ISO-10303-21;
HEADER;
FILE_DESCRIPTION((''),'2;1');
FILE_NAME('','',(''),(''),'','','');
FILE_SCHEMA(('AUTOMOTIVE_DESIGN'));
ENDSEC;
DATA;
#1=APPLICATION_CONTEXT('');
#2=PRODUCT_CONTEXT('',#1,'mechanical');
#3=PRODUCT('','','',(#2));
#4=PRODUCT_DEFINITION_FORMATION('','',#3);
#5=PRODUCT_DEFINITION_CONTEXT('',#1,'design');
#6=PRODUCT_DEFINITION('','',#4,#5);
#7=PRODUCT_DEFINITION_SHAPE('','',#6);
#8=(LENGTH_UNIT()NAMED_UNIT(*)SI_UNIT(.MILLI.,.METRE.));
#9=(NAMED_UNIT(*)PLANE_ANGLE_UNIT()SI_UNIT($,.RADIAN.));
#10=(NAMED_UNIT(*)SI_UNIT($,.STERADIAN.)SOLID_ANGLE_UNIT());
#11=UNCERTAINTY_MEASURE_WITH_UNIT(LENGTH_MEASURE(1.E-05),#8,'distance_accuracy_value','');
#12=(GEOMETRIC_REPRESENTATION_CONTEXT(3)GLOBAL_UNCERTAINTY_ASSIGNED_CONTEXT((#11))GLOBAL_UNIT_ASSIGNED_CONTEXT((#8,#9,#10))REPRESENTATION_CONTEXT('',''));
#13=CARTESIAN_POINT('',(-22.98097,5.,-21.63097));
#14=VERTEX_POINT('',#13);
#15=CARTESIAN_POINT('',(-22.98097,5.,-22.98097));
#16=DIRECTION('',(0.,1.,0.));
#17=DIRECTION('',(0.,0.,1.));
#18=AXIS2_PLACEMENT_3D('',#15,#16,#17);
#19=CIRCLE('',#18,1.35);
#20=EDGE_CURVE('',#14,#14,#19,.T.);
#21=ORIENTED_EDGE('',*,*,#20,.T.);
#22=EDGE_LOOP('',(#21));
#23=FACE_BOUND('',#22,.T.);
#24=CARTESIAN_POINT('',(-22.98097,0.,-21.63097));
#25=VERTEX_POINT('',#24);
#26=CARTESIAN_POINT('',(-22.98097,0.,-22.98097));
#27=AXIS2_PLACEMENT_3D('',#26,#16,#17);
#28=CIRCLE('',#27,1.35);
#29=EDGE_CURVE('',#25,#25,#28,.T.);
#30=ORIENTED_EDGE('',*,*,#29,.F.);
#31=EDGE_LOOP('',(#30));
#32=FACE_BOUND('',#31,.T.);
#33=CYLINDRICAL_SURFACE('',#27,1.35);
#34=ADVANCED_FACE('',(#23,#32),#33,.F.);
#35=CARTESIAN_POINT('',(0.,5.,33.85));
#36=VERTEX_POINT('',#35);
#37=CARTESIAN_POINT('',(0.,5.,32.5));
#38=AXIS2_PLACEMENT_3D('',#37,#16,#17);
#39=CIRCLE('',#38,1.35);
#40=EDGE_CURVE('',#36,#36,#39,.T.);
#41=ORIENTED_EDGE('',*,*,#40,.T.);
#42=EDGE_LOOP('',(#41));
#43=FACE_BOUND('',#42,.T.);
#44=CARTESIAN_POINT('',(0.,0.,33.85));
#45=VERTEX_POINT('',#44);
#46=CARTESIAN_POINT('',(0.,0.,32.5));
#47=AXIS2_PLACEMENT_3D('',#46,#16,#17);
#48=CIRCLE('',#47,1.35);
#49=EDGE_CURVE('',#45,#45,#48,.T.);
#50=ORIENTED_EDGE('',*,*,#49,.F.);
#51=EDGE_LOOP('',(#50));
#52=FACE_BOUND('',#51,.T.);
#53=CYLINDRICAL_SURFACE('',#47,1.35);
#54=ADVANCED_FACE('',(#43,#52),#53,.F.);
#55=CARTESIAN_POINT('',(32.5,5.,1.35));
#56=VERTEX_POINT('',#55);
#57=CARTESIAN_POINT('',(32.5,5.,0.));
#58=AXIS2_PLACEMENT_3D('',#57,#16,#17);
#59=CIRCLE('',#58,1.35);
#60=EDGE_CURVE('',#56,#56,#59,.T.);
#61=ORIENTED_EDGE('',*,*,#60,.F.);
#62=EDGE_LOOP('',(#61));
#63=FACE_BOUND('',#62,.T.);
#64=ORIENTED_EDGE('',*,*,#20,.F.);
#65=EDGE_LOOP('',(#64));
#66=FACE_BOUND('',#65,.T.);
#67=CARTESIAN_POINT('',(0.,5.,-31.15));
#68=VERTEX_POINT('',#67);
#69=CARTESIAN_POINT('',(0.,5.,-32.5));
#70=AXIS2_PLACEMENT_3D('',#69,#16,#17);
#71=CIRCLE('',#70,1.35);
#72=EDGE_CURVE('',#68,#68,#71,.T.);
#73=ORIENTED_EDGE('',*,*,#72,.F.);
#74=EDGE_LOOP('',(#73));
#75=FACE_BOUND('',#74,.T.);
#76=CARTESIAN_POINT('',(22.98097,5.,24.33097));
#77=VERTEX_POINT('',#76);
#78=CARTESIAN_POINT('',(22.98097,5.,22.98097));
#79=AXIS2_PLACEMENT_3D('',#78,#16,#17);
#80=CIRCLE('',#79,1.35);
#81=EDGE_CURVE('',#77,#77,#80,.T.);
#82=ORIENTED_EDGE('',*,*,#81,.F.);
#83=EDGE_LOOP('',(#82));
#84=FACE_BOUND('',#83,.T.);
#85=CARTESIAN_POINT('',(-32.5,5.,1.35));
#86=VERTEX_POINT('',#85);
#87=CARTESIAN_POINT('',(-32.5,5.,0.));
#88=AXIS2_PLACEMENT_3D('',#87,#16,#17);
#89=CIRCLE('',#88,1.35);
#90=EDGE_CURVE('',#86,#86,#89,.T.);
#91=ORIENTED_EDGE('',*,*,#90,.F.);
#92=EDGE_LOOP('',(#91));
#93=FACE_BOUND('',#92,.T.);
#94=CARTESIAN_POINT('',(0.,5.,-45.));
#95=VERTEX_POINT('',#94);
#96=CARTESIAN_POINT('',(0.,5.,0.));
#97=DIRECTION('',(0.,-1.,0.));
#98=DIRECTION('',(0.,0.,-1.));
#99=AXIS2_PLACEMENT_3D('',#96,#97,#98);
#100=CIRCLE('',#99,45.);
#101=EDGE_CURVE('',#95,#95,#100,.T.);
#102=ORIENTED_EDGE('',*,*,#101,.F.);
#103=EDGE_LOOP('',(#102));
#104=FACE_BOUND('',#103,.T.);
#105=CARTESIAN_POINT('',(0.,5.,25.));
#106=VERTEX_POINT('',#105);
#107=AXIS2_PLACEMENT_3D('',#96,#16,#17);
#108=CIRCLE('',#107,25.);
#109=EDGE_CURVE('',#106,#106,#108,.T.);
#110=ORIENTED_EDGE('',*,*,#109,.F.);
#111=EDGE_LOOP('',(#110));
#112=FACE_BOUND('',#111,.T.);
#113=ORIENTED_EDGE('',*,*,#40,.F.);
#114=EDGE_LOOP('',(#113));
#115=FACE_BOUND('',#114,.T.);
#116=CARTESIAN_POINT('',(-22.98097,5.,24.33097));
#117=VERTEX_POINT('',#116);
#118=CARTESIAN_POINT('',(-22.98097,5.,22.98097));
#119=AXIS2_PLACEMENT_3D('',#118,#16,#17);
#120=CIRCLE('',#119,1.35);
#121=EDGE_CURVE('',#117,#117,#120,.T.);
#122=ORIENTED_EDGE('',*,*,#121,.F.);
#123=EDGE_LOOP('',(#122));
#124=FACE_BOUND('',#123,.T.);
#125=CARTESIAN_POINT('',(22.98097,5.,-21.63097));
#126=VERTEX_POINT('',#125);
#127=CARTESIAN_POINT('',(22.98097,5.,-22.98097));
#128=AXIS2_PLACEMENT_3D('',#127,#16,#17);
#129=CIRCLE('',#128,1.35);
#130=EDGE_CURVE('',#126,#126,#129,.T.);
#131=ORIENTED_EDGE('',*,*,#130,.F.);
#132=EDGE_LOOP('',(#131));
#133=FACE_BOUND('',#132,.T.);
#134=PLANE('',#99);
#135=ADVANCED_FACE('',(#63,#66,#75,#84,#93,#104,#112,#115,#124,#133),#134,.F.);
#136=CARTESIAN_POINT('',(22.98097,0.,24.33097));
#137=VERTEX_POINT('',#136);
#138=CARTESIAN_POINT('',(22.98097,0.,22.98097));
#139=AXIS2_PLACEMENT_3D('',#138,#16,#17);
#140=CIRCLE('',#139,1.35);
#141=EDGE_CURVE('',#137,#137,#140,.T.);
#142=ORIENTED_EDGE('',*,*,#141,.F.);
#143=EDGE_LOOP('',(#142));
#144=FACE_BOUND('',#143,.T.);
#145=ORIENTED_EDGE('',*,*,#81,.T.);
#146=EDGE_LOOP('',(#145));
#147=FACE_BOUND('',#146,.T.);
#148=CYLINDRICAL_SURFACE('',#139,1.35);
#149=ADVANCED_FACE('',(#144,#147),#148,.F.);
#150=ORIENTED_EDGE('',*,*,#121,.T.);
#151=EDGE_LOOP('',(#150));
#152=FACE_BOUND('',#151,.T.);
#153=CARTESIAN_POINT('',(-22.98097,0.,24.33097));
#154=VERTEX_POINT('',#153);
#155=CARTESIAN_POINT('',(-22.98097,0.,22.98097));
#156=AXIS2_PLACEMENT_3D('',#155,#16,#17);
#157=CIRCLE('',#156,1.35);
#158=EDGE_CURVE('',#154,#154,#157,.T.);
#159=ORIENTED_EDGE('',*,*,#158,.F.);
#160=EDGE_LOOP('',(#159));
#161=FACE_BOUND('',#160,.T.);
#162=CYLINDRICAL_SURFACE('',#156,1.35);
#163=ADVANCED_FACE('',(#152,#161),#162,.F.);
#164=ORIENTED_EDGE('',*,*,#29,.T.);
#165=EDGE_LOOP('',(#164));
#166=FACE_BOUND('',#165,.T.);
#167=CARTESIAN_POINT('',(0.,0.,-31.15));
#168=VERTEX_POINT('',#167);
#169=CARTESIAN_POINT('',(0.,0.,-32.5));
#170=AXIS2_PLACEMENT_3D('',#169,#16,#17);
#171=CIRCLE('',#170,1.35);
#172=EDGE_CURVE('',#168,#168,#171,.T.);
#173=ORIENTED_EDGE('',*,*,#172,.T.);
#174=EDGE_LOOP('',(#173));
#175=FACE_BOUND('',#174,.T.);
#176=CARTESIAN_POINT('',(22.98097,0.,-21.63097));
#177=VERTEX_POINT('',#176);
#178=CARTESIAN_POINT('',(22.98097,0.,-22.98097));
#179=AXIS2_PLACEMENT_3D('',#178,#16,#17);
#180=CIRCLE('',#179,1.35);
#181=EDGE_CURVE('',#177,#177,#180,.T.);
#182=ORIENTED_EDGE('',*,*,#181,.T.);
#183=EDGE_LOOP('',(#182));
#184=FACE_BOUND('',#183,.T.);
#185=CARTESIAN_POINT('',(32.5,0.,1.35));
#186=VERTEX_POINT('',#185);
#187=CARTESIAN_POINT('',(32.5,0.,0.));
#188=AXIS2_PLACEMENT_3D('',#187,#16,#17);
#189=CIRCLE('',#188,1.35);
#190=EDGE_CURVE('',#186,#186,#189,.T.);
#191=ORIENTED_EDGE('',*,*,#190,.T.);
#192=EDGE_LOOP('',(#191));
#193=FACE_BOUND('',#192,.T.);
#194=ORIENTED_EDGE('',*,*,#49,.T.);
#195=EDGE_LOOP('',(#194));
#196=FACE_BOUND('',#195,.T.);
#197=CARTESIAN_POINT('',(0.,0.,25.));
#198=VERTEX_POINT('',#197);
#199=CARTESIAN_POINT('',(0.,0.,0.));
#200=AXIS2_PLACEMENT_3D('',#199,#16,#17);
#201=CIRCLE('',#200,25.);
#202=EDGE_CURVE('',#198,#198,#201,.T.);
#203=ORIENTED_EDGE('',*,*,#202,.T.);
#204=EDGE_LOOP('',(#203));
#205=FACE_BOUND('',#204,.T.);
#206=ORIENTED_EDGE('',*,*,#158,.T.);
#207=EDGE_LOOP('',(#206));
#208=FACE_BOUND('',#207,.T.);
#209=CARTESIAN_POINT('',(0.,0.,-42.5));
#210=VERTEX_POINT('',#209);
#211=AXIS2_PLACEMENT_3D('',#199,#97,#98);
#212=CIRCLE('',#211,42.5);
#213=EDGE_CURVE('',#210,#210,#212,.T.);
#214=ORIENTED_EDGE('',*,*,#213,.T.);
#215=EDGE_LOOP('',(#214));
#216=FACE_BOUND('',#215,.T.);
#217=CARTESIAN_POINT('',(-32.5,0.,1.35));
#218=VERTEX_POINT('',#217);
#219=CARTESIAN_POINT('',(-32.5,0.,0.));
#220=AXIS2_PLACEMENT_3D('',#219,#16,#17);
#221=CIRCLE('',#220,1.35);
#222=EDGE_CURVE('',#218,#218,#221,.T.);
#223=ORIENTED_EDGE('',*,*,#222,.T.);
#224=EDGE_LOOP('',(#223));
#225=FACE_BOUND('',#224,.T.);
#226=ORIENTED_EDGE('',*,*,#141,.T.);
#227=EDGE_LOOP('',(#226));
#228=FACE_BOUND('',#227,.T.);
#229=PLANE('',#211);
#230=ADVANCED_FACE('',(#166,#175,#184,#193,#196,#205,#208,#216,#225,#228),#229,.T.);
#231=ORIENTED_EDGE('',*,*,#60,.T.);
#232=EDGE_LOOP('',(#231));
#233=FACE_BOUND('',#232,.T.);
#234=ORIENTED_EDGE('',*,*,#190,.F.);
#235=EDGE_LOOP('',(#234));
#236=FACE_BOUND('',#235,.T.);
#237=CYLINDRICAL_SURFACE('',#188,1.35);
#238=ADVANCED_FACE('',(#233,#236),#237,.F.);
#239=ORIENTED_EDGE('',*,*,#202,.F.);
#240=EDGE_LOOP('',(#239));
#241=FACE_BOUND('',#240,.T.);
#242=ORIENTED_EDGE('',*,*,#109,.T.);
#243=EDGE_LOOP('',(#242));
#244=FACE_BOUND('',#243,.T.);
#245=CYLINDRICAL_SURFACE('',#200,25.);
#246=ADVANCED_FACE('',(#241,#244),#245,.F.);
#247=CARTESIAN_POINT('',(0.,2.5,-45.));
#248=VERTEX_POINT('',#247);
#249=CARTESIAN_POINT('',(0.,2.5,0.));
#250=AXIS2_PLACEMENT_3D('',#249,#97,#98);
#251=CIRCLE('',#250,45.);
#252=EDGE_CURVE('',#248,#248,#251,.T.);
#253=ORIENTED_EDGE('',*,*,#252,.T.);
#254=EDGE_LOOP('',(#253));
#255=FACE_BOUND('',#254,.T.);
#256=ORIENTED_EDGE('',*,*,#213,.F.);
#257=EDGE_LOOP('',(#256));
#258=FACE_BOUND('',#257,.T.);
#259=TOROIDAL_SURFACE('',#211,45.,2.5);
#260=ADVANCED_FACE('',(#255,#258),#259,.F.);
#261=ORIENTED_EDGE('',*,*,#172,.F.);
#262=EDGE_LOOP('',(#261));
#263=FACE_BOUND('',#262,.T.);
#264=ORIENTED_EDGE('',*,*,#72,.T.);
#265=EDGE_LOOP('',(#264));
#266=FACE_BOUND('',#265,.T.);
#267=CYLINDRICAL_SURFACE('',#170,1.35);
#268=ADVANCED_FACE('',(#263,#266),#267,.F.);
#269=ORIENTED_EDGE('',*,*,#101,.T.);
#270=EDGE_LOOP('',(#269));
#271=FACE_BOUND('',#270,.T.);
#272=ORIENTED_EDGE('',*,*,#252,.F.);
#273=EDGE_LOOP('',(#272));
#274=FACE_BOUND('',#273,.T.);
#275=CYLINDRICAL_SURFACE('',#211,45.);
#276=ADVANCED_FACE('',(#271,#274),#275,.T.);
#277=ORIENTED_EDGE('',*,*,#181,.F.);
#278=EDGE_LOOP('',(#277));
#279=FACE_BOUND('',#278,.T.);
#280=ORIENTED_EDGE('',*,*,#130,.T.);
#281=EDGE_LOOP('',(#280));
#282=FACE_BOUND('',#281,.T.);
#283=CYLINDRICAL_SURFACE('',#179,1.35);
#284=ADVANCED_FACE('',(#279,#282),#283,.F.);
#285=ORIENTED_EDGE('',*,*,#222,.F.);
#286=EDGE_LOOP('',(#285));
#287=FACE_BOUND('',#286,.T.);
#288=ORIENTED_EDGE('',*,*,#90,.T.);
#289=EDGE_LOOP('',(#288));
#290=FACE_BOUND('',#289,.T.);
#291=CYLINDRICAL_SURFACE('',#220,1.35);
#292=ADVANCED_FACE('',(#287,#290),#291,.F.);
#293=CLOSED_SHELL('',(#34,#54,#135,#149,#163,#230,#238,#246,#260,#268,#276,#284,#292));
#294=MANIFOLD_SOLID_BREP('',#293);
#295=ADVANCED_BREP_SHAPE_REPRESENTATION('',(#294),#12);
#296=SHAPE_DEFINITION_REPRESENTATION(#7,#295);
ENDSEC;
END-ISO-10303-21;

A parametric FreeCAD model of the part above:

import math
import FreeCAD as App
import Part
import Sketcher
from FreeCAD import Vector

doc = App.newDocument("Part")
body = doc.addObject("PartDesign::Body", "Body")

# Sketch on XY plane
sketch1 = body.newObject("Sketcher::SketchObject", "Sketch")
sketch1.AttachmentSupport = (doc.getObject("XY_Plane"), [""])
sketch1.MapMode = "FlatFace"
sketch1.addGeometry(Part.LineSegment(Vector(-42.5, 0, 0), Vector(0, 0, 0)), False)
sketch1.addGeometry(Part.LineSegment(Vector(0, 0, 0), Vector(0, 5, 0)), False)
sketch1.addGeometry(Part.LineSegment(Vector(0, 5, 0), Vector(-45, 5, 0)), False)
sketch1.addGeometry(Part.LineSegment(Vector(-45, 5, 0), Vector(-45, 2.5, 0)), False)
sketch1.addGeometry(Part.ArcOfCircle(Part.Circle(Vector(-45, 0, 0), Vector(0, 0, 1), 2.5), math.radians(0), math.radians(90)), False)
sketch1.addConstraint(Sketcher.Constraint("Coincident", 0, 2, 1, 1))
sketch1.addConstraint(Sketcher.Constraint("Coincident", 1, 2, 2, 1))
sketch1.addConstraint(Sketcher.Constraint("Coincident", 2, 2, 3, 1))
sketch1.addConstraint(Sketcher.Constraint("Coincident", 3, 2, 4, 2))
sketch1.addConstraint(Sketcher.Constraint("Coincident", 4, 1, 0, 1))
sketch1.addConstraint(Sketcher.Constraint("Horizontal", 0))
sketch1.addConstraint(Sketcher.Constraint("Vertical", 1))
sketch1.addConstraint(Sketcher.Constraint("Horizontal", 2))
sketch1.addConstraint(Sketcher.Constraint("Vertical", 3))
sketch1.addConstraint(Sketcher.Constraint("Coincident", 0, 2, -1, 1))
sketch1.addConstraint(Sketcher.Constraint("PointOnObject", 4, 3, -1))
sketch1.addConstraint(Sketcher.Constraint("Vertical", 4, 3, 2, 2))
sketch1.addConstraint(Sketcher.Constraint("Radius", 4, 2.5))
sketch1.addConstraint(Sketcher.Constraint("DistanceX", 2, 2, 2, 1, 45.0))
sketch1.addConstraint(Sketcher.Constraint("DistanceY", 1, 1, 1, 2, 5.0))
revolution = body.newObject("PartDesign::Revolution", "Revolution")
revolution.Profile = sketch1
revolution.ReferenceAxis = (sketch1, ["V_Axis"])
revolution.Angle = 360

# Sketch on XZ plane
sketch2 = body.newObject("Sketcher::SketchObject", "Sketch001")
sketch2.AttachmentSupport = (doc.getObject("XZ_Plane"), [""])
sketch2.MapMode = "FlatFace"
sketch2.AttachmentOffset = App.Placement(Vector(0, 0, -5), App.Rotation())
sketch2.addGeometry(Part.Circle(Vector(0, -32.5, 0), Vector(0, 0, 1), 1.35), False)
sketch2.addGeometry(Part.Circle(Vector(22.98097, -22.98097, 0), Vector(0, 0, 1), 1.35), False)
sketch2.addGeometry(Part.Circle(Vector(32.5, 0, 0), Vector(0, 0, 1), 1.35), False)
sketch2.addGeometry(Part.Circle(Vector(22.98097, 22.98097, 0), Vector(0, 0, 1), 1.35), False)
sketch2.addGeometry(Part.Circle(Vector(0, 32.5, 0), Vector(0, 0, 1), 1.35), False)
sketch2.addGeometry(Part.Circle(Vector(-22.98097, 22.98097, 0), Vector(0, 0, 1), 1.35), False)
sketch2.addGeometry(Part.Circle(Vector(-32.5, 0, 0), Vector(0, 0, 1), 1.35), False)
sketch2.addGeometry(Part.Circle(Vector(-22.98097, -22.98097, 0), Vector(0, 0, 1), 1.35), False)
sketch2.addConstraint(Sketcher.Constraint("Equal", 0, 1))
sketch2.addConstraint(Sketcher.Constraint("Equal", 1, 2))
sketch2.addConstraint(Sketcher.Constraint("Equal", 2, 3))
sketch2.addConstraint(Sketcher.Constraint("Equal", 3, 4))
sketch2.addConstraint(Sketcher.Constraint("Equal", 4, 5))
sketch2.addConstraint(Sketcher.Constraint("Equal", 5, 6))
sketch2.addConstraint(Sketcher.Constraint("Equal", 6, 7))
sketch2.addConstraint(Sketcher.Constraint("Symmetric", 0, 3, 4, 3, -1, 1))
sketch2.addConstraint(Sketcher.Constraint("Symmetric", 1, 3, 5, 3, -1, 1))
sketch2.addConstraint(Sketcher.Constraint("Symmetric", 2, 3, 6, 3, -1, 1))
sketch2.addConstraint(Sketcher.Constraint("Symmetric", 3, 3, 7, 3, -1, 1))
sketch2.addConstraint(Sketcher.Constraint("Symmetric", 3, 3, 5, 3, -2))
sketch2.addConstraint(Sketcher.Constraint("PointOnObject", 0, 3, -2))
sketch2.addConstraint(Sketcher.Constraint("PointOnObject", 2, 3, -1))
sketch2.addConstraint(Sketcher.Constraint("Diameter", 0, 2.7))
sketch2.addConstraint(Sketcher.Constraint("DistanceY", 0, 3, 4, 3, 65.0))
sketch2.addConstraint(Sketcher.Constraint("DistanceX", -1, 1, 2, 3, 32.5))
sketch2.addConstraint(Sketcher.Constraint("DistanceX", -1, 1, 1, 3, 22.98097))
sketch2.addConstraint(Sketcher.Constraint("DistanceY", 1, 3, -1, 1, 22.98097))
pocket1 = body.newObject("PartDesign::Pocket", "Pocket")
pocket1.Profile = sketch2
pocket1.Type = "ThroughAll"
pocket1.Reversed = True

# Sketch on XZ plane
sketch3 = body.newObject("Sketcher::SketchObject", "Sketch002")
sketch3.AttachmentSupport = (doc.getObject("XZ_Plane"), [""])
sketch3.MapMode = "FlatFace"
sketch3.AttachmentOffset = App.Placement(Vector(0, 0, -5), App.Rotation())
sketch3.addGeometry(Part.Circle(Vector(0, 0, 0), Vector(0, 0, 1), 25), False)
sketch3.addConstraint(Sketcher.Constraint("Coincident", 0, 3, -1, 1))
sketch3.addConstraint(Sketcher.Constraint("Diameter", 0, 50.0))
pocket2 = body.newObject("PartDesign::Pocket", "Pocket001")
pocket2.Profile = sketch3
pocket2.Type = "ThroughAll"
pocket2.Reversed = True

doc.recompute()
